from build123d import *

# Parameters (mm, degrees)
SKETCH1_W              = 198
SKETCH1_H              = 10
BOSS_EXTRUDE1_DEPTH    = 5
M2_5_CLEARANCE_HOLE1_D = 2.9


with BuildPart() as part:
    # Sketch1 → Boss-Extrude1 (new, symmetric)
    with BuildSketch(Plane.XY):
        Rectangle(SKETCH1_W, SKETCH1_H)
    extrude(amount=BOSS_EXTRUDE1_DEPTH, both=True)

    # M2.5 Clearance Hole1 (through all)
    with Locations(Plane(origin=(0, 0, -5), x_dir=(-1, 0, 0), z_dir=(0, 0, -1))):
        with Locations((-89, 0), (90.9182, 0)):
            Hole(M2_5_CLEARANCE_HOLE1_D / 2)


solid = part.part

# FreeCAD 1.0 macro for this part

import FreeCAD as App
import Part
import Sketcher

V = App.Vector
Q = App.Units.Quantity


def add_polygon(sketch, points):
    """Adds a closed chain of lines whose ends are joined by coincident constraints."""
    first, n = sketch.GeometryCount, len(points)
    for a, b in zip(points, points[1:] + points[:1]):
        sketch.addGeometry(Part.LineSegment(App.Vector(*a, 0), App.Vector(*b, 0)), False)
    for i in range(n):
        sketch.addConstraint(Sketcher.Constraint("Coincident", first + i, 2, first + (i + 1) % n, 1))

doc = App.newDocument("Part")
params = doc.addObject("Spreadsheet::Sheet", "Params")
for row, (alias, value) in enumerate([
    ("sketch1_width", "198 mm"),
    ("sketch1_height", "10 mm"),
    ("pad1_length", "10 mm"),
    ("sketch2_diameter", "2.9 mm"),
    ("hole_diameter", "2.9 mm"),
], start=1):
    params.set(f"A{row}", alias)
    params.set(f"B{row}", "=" + value)
    params.setAlias(f"B{row}", alias)

body = doc.addObject("PartDesign::Body", "Body")

sketch1 = doc.addObject("Sketcher::SketchObject", "Sketch")
body.addObject(sketch1)
sketch1.AttachmentSupport = (doc.XY_Plane, [""])
sketch1.MapMode = "FlatFace"
add_polygon(sketch1, [(-99, 5), (-99, -5), (99, -5), (99, 5)])
sketch1.addConstraint(Sketcher.Constraint("Vertical", 0))
sketch1.addConstraint(Sketcher.Constraint("Horizontal", 1))
sketch1.addConstraint(Sketcher.Constraint("Vertical", 2))
sketch1.addConstraint(Sketcher.Constraint("Horizontal", 3))
sketch1.addConstraint(Sketcher.Constraint("Symmetric", 0, 2, 2, 2, -1, 1))
sketch1.addConstraint(Sketcher.Constraint("DistanceX", 1, 1, 1, 2, Q("198 mm")))
sketch1.addConstraint(Sketcher.Constraint("DistanceY", 0, 2, 0, 1, Q("10 mm")))
sketch1.setExpression("Constraints[9]", "Params.sketch1_width")
sketch1.setExpression("Constraints[10]", "Params.sketch1_height")
pad1 = doc.addObject("PartDesign::Pad", "Pad")
body.addObject(pad1)
pad1.Profile = sketch1
pad1.setExpression("Length", "Params.pad1_length")
pad1.Midplane = True

sketch2 = doc.addObject("Sketcher::SketchObject", "Sketch001")
body.addObject(sketch2)
sketch2.AttachmentSupport = (doc.XY_Plane, [""])
sketch2.MapMode = "FlatFace"
sketch2.AttachmentOffset = App.Placement(V(0, 0, -5), App.Rotation())
sketch2.addGeometry(Part.Circle(V(89, 0, 0), V(0, 0, 1), 1.4), False)
sketch2.addGeometry(Part.Circle(V(-90.9, 0, 0), V(0, 0, 1), 1.4), False)
sketch2.addConstraint(Sketcher.Constraint("Equal", 0, 1))
sketch2.addConstraint(Sketcher.Constraint("PointOnObject", 0, 3, -1))
sketch2.addConstraint(Sketcher.Constraint("PointOnObject", 1, 3, -1))
sketch2.addConstraint(Sketcher.Constraint("Diameter", 0, Q("2.9 mm")))
sketch2.addConstraint(Sketcher.Constraint("DistanceX", -1, 1, 0, 3, Q("89 mm")))
sketch2.addConstraint(Sketcher.Constraint("DistanceX", 1, 3, -1, 1, Q("90.9182 mm")))
sketch2.setExpression("Constraints[3]", "Params.sketch2_diameter")
doc.recompute()
hole = doc.addObject("PartDesign::Hole", "Hole")
body.addObject(hole)
hole.Profile = sketch2
hole.ThreadType = "None"
hole.setExpression("Diameter", "Params.hole_diameter")
hole.DepthType = "ThroughAll"
hole.Reversed = True

doc.recompute()
